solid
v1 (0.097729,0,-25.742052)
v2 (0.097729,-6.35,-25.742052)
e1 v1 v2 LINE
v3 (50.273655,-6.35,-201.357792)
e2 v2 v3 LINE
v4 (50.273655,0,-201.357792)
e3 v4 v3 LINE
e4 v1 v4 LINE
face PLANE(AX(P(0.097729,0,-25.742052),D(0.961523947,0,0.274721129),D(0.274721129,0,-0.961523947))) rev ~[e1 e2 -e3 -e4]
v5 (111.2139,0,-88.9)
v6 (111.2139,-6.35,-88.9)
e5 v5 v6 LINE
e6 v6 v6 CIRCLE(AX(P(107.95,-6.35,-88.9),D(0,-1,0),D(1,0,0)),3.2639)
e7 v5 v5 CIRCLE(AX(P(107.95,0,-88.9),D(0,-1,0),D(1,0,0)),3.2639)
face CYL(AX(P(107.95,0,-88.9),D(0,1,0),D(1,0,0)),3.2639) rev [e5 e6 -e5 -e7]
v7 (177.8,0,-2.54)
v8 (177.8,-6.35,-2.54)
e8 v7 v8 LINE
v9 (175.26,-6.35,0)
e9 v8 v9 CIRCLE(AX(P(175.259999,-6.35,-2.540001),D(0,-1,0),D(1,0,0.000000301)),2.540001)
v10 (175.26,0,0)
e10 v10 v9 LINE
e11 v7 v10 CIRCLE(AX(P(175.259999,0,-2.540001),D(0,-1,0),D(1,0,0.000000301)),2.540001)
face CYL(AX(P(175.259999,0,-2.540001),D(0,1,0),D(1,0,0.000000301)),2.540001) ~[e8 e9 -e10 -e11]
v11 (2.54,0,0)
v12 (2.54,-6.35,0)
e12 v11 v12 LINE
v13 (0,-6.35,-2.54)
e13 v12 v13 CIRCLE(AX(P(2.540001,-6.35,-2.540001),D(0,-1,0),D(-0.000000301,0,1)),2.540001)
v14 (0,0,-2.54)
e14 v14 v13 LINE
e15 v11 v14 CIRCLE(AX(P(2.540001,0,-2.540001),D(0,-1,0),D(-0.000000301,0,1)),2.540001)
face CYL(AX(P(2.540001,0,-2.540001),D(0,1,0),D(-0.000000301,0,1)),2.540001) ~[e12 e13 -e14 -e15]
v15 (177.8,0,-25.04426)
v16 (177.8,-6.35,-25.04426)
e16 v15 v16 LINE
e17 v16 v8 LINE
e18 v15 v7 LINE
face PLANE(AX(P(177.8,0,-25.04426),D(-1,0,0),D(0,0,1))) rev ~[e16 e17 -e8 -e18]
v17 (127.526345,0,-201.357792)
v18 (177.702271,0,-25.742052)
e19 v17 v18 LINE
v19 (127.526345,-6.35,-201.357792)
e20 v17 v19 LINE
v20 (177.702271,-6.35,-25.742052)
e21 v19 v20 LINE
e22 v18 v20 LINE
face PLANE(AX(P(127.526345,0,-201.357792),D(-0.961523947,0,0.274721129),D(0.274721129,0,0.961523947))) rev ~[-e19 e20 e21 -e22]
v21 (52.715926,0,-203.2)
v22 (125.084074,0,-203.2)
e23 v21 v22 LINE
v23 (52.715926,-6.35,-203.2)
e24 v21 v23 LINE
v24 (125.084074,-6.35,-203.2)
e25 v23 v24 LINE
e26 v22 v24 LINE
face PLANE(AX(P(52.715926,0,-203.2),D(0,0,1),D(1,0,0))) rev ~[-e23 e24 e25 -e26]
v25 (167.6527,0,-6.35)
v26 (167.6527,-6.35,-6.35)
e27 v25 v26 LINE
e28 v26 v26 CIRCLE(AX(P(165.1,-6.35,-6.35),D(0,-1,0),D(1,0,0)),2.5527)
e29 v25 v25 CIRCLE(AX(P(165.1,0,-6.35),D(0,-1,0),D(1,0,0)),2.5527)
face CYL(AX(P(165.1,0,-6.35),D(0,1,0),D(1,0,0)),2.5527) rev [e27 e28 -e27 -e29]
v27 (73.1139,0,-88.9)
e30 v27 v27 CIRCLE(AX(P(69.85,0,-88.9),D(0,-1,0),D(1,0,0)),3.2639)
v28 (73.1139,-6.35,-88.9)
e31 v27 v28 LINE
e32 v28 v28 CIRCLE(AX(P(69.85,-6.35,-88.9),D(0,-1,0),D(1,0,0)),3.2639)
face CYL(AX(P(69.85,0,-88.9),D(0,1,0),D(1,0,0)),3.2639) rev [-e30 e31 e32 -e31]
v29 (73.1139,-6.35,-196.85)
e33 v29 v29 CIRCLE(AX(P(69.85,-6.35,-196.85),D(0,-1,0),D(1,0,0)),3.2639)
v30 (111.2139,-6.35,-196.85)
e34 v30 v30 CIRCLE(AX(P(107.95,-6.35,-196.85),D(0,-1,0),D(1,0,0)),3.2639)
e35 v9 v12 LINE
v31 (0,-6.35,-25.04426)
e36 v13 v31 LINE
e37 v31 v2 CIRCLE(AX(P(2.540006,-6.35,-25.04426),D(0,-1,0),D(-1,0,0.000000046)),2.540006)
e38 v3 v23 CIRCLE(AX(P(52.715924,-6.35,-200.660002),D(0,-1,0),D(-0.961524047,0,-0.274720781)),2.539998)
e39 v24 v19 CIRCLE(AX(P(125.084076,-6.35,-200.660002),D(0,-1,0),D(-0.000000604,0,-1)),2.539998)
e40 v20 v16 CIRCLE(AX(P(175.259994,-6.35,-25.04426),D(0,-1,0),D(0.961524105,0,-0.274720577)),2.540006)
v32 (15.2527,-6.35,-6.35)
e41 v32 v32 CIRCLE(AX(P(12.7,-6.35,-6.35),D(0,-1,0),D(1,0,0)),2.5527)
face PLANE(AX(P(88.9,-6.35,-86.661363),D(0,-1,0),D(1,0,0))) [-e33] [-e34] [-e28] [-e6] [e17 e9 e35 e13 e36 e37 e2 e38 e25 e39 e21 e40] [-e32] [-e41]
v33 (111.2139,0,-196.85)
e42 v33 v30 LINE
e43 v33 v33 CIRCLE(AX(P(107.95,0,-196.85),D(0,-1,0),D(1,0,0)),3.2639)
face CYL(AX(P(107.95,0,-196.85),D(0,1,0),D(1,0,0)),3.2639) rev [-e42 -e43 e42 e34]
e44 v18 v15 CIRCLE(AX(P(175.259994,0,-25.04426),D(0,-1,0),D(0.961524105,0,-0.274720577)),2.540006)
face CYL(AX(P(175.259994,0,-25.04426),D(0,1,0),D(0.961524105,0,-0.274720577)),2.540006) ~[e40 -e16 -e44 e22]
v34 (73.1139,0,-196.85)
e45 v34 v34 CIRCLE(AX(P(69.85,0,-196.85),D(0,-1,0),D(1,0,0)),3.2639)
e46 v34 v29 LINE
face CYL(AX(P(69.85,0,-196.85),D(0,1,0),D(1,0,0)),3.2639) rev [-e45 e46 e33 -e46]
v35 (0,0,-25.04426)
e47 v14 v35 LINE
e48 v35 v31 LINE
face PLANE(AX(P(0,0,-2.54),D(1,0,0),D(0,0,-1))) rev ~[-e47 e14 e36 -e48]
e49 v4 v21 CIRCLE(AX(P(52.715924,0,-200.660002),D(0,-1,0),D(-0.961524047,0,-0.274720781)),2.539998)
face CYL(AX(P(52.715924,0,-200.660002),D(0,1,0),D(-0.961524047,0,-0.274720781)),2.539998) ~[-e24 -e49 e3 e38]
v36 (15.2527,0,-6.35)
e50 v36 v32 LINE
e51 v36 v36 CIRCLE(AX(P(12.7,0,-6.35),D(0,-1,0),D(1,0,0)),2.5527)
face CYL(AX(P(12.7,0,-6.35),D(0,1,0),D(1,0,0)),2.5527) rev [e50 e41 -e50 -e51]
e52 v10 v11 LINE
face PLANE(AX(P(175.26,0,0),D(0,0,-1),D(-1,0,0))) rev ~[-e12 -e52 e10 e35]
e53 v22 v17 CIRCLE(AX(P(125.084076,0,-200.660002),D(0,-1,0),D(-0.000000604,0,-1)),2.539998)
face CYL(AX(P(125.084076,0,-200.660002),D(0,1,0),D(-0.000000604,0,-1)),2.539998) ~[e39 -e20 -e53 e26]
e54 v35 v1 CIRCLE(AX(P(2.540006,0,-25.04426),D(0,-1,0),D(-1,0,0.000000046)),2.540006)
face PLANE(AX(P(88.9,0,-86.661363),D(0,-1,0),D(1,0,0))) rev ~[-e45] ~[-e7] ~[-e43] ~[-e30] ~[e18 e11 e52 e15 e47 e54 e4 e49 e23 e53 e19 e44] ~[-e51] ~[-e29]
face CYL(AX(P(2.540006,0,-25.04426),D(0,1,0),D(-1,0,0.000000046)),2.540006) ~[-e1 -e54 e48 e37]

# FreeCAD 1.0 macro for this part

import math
import FreeCAD as App
import Part
import Sketcher
Q = App.Units.Quantity

doc = App.newDocument("Part")
body = doc.addObject("PartDesign::Body", "Body")

# Sketch on XZ plane
sketch1 = body.newObject("Sketcher::SketchObject", "Sketch")
sketch1.AttachmentSupport = (doc.getObject("XZ_Plane"), [""])
sketch1.MapMode = "FlatFace"
sketch1.addGeometry([
    Part.LineSegment(App.Vector(175.3, 0, 0), App.Vector(2.5, 0, 0)),  # 0
    Part.ArcOfCircle(Part.Circle(App.Vector(2.5, -2.5, 0), App.Vector(0, 0, 1), 2.5), math.radians(90), math.radians(180)),  # 1
    Part.LineSegment(App.Vector(0, -2.5, 0), App.Vector(0, -25, 0)),  # 2
    Part.ArcOfCircle(Part.Circle(App.Vector(2.5, -25, 0), App.Vector(0, 0, 1), 2.5), math.radians(180), math.radians(195.95)),  # 3
    Part.LineSegment(App.Vector(0.1, -25.7, 0), App.Vector(50.3, -201.4, 0)),  # 4
    Part.ArcOfCircle(Part.Circle(App.Vector(52.7, -200.7, 0), App.Vector(0, 0, 1), 2.5), math.radians(-164), math.radians(-90)),  # 5
    Part.LineSegment(App.Vector(52.7, -203.2, 0), App.Vector(125.1, -203.2, 0)),  # 6
    Part.ArcOfCircle(Part.Circle(App.Vector(125.1, -200.7, 0), App.Vector(0, 0, 1), 2.5), math.radians(-90), math.radians(-16)),  # 7
    Part.LineSegment(App.Vector(127.5, -201.4, 0), App.Vector(177.7, -25.7, 0)),  # 8
    Part.ArcOfCircle(Part.Circle(App.Vector(175.3, -25, 0), App.Vector(0, 0, 1), 2.5), math.radians(-15.95), math.radians(0)),  # 9
    Part.LineSegment(App.Vector(177.8, -25, 0), App.Vector(177.8, -2.5, 0)),  # 10
    Part.ArcOfCircle(Part.Circle(App.Vector(175.3, -2.5, 0), App.Vector(0, 0, 1), 2.5), math.radians(0), math.radians(90)),  # 11
    Part.Circle(App.Vector(69.8, -196.8, 0), App.Vector(0, 0, 1), 3.3),  # 12
    Part.Circle(App.Vector(108, -196.8, 0), App.Vector(0, 0, 1), 3.3),  # 13
    Part.Circle(App.Vector(69.8, -88.9, 0), App.Vector(0, 0, 1), 3.3),  # 14
    Part.Circle(App.Vector(12.7, -6.3, 0), App.Vector(0, 0, 1), 2.6),  # 15
    Part.Circle(App.Vector(108, -88.9, 0), App.Vector(0, 0, 1), 3.3),  # 16
    Part.Circle(App.Vector(165.1, -6.3, 0), App.Vector(0, 0, 1), 2.6),  # 17
], False)
sketch1.addConstraint([
    Sketcher.Constraint("Tangent", 0, 2, 1, 1),
    Sketcher.Constraint("Tangent", 1, 2, 2, 1),
    Sketcher.Constraint("Tangent", 2, 2, 3, 1),
    Sketcher.Constraint("Tangent", 3, 2, 4, 1),
    Sketcher.Constraint("Tangent", 4, 2, 5, 1),
    Sketcher.Constraint("Tangent", 5, 2, 6, 1),
    Sketcher.Constraint("Tangent", 6, 2, 7, 1),
    Sketcher.Constraint("Tangent", 7, 2, 8, 1),
    Sketcher.Constraint("Tangent", 8, 2, 9, 1),
    Sketcher.Constraint("Tangent", 9, 2, 10, 1),
    Sketcher.Constraint("Tangent", 10, 2, 11, 1),
    Sketcher.Constraint("Tangent", 11, 2, 0, 1),
    Sketcher.Constraint("Horizontal", 0),
    Sketcher.Constraint("Vertical", 2),
    Sketcher.Constraint("Horizontal", 6),
    Sketcher.Constraint("Vertical", 10),
    Sketcher.Constraint("Equal", 5, 7),
    Sketcher.Constraint("Equal", 3, 9),
    Sketcher.Constraint("Equal", 1, 11),
    Sketcher.Constraint("Equal", 12, 13),
    Sketcher.Constraint("Equal", 13, 14),
    Sketcher.Constraint("Equal", 14, 16),
    Sketcher.Constraint("Equal", 15, 17),
    Sketcher.Constraint("PointOnObject", 0, 2, -1),
    Sketcher.Constraint("PointOnObject", 1, 2, -2),
    Sketcher.Constraint("Horizontal", 3, 3, 9, 3),
    Sketcher.Constraint("Horizontal", 12, 3, 13, 3),
    Sketcher.Constraint("Horizontal", 14, 3, 16, 3),
    Sketcher.Constraint("Horizontal", 15, 3, 17, 3),
    Sketcher.Constraint("Horizontal", 4, 2, 7, 2),
    Sketcher.Constraint("Vertical", 12, 3, 14, 3),
    Sketcher.Constraint("Vertical", 13, 3, 16, 3),
    Sketcher.Constraint("Radius", 1, Q("0.1 in")),
    Sketcher.Constraint("Radius", 5, Q("0.0999999 in")),
    Sketcher.Constraint("Diameter", 12, Q("0.257 in")),
    Sketcher.Constraint("Diameter", 15, Q("0.201 in")),
    Sketcher.Constraint("DistanceX", 0, 2, 0, 1, Q("6.8 in")),
    Sketcher.Constraint("DistanceY", 5, 2, -1, 1, Q("8 in")),
    Sketcher.Constraint("DistanceX", 15, 3, 17, 3, Q("6 in")),
    Sketcher.Constraint("DistanceY", 14, 3, -1, 1, Q("3.5 in")),
    Sketcher.Constraint("DistanceX", -1, 1, 15, 3, Q("0.5 in")),
    Sketcher.Constraint("DistanceX", 12, 3, 13, 3, Q("1.5 in")),
    Sketcher.Constraint("DistanceX", -1, 1, 12, 3, Q("2.75 in")),
    Sketcher.Constraint("DistanceY", 12, 3, -1, 1, Q("7.75 in")),
    Sketcher.Constraint("DistanceY", 15, 3, -1, 1, Q("0.25 in")),
    Sketcher.Constraint("Radius", 3, Q("2.540006 mm")),
    Sketcher.Constraint("DistanceY", 2, 2, 2, 1, Q("22.50426 mm")),
    Sketcher.Constraint("DistanceX", 6, 1, 6, 2, Q("72.368148 mm")),
])
pad1 = body.newObject("PartDesign::Pad", "Pad")
pad1.Profile = sketch1
pad1.Length = Q("0.25 in")

doc.recompute()
